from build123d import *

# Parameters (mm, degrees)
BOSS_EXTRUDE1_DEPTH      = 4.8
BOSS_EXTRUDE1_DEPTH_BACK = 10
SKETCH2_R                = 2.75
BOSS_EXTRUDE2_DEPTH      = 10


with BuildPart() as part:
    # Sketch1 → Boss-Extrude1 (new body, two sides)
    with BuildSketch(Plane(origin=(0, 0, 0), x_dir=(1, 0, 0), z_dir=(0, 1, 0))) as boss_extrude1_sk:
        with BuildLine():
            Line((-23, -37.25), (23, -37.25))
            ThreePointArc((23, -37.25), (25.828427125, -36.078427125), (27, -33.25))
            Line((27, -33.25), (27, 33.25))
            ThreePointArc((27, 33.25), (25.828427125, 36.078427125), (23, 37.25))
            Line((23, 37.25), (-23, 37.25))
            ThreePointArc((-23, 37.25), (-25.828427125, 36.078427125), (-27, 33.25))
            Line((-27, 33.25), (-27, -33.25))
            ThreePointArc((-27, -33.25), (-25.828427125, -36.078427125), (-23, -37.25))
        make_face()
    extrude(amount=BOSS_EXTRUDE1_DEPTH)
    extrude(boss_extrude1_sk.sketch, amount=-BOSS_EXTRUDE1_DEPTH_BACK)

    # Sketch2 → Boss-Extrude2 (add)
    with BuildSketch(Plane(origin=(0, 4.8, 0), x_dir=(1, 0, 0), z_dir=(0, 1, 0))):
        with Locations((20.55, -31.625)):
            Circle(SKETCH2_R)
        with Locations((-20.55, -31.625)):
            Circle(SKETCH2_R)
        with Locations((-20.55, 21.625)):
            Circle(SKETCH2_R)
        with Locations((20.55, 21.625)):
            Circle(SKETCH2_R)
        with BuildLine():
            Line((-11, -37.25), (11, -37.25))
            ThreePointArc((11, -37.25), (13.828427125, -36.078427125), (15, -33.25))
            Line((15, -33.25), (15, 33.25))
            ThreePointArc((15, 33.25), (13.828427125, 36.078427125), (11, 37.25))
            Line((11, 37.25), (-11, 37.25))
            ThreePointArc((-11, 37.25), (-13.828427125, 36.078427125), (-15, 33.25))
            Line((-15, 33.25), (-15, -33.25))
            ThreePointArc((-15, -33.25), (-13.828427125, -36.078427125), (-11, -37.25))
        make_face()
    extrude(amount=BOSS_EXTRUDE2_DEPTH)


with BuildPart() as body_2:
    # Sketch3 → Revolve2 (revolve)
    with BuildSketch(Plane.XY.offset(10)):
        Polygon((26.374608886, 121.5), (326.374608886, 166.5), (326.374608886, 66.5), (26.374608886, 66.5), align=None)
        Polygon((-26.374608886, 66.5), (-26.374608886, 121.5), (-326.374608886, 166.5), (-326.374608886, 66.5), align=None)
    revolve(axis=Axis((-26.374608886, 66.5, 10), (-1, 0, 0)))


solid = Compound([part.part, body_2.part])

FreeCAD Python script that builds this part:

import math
import FreeCAD as App
import Part
import Sketcher
from FreeCAD import Vector
Q = App.Units.Quantity

doc = App.newDocument("Part")
body = doc.addObject("PartDesign::Body", "Body")

# Sketch on XZ plane
sketch1 = doc.addObject("Sketcher::SketchObject", "Sketch")
body.addObject(sketch1)
sketch1.AttachmentSupport = (doc.XZ_Plane, [""])
sketch1.MapMode = "FlatFace"
sketch1.addGeometry(Part.LineSegment(Vector(-23, 37.2, 0), Vector(23, 37.2, 0)), False)
sketch1.addGeometry(Part.ArcOfCircle(Part.Circle(Vector(23, 33.3, 0), Vector(0, 0, 1), 4), math.radians(0), math.radians(90)), False)
sketch1.addGeometry(Part.LineSegment(Vector(27, 33.2, 0), Vector(27, -33.2, 0)), False)
sketch1.addGeometry(Part.ArcOfCircle(Part.Circle(Vector(23, -33.3, 0), Vector(0, 0, 1), 4), math.radians(-90), math.radians(0)), False)
sketch1.addGeometry(Part.LineSegment(Vector(23, -37.2, 0), Vector(-23, -37.2, 0)), False)
sketch1.addGeometry(Part.ArcOfCircle(Part.Circle(Vector(-23, -33.3, 0), Vector(0, 0, 1), 4), math.radians(180), math.radians(270)), False)
sketch1.addGeometry(Part.LineSegment(Vector(-27, -33.2, 0), Vector(-27, 33.2, 0)), False)
sketch1.addGeometry(Part.ArcOfCircle(Part.Circle(Vector(-23, 33.3, 0), Vector(0, 0, 1), 4), math.radians(90), math.radians(180)), False)
sketch1.addConstraint(Sketcher.Constraint("Tangent", 0, 2, 1, 2))
sketch1.addConstraint(Sketcher.Constraint("Tangent", 1, 1, 2, 1))
sketch1.addConstraint(Sketcher.Constraint("Tangent", 2, 2, 3, 2))
sketch1.addConstraint(Sketcher.Constraint("Tangent", 3, 1, 4, 1))
sketch1.addConstraint(Sketcher.Constraint("Tangent", 4, 2, 5, 2))
sketch1.addConstraint(Sketcher.Constraint("Tangent", 5, 1, 6, 1))
sketch1.addConstraint(Sketcher.Constraint("Tangent", 6, 2, 7, 2))
sketch1.addConstraint(Sketcher.Constraint("Tangent", 7, 1, 0, 1))
sketch1.addConstraint(Sketcher.Constraint("Horizontal", 0))
sketch1.addConstraint(Sketcher.Constraint("Vertical", 2))
sketch1.addConstraint(Sketcher.Constraint("Horizontal", 4))
sketch1.addConstraint(Sketcher.Constraint("Vertical", 6))
sketch1.addConstraint(Sketcher.Constraint("Equal", 1, 3))
sketch1.addConstraint(Sketcher.Constraint("Equal", 3, 5))
sketch1.addConstraint(Sketcher.Constraint("Equal", 5, 7))
sketch1.addConstraint(Sketcher.Constraint("Symmetric", 1, 3, 5, 3, -1, 1))
sketch1.addConstraint(Sketcher.Constraint("Radius", 1, Q("4 mm")))
sketch1.addConstraint(Sketcher.Constraint("DistanceX", 0, 1, 0, 2, Q("46 mm")))
sketch1.addConstraint(Sketcher.Constraint("DistanceY", 2, 2, 2, 1, Q("66.5 mm")))
pad1 = doc.addObject("PartDesign::Pad", "Pad")
body.addObject(pad1)
pad1.Profile = sketch1
pad1.Type = "TwoLengths"
pad1.Length = 4.8
pad1.Length2 = 10
pad1.Reversed = True

# Sketch on XZ plane
sketch2 = doc.addObject("Sketcher::SketchObject", "Sketch001")
body.addObject(sketch2)
sketch2.AttachmentSupport = (doc.XZ_Plane, [""])
sketch2.MapMode = "FlatFace"
sketch2.AttachmentOffset = App.Placement(Vector(0, 0, -4.8), App.Rotation())
sketch2.addGeometry(Part.Circle(Vector(20.6, 31.6, 0), Vector(0, 0, 1), 2.8), False)
sketch2.addGeometry(Part.Circle(Vector(-20.6, 31.6, 0), Vector(0, 0, 1), 2.8), False)
sketch2.addGeometry(Part.Circle(Vector(-20.6, -21.6, 0), Vector(0, 0, 1), 2.8), False)
sketch2.addGeometry(Part.Circle(Vector(20.6, -21.6, 0), Vector(0, 0, 1), 2.8), False)
sketch2.addGeometry(Part.LineSegment(Vector(-11, 37.2, 0), Vector(11, 37.2, 0)), False)
sketch2.addGeometry(Part.ArcOfCircle(Part.Circle(Vector(11, 33.3, 0), Vector(0, 0, 1), 4), math.radians(0), math.radians(90)), False)
sketch2.addGeometry(Part.LineSegment(Vector(15, 33.2, 0), Vector(15, -33.2, 0)), False)
sketch2.addGeometry(Part.ArcOfCircle(Part.Circle(Vector(11, -33.3, 0), Vector(0, 0, 1), 4), math.radians(-90), math.radians(0)), False)
sketch2.addGeometry(Part.LineSegment(Vector(11, -37.2, 0), Vector(-11, -37.2, 0)), False)
sketch2.addGeometry(Part.ArcOfCircle(Part.Circle(Vector(-11, -33.3, 0), Vector(0, 0, 1), 4), math.radians(180), math.radians(270)), False)
sketch2.addGeometry(Part.LineSegment(Vector(-15, -33.2, 0), Vector(-15, 33.2, 0)), False)
sketch2.addGeometry(Part.ArcOfCircle(Part.Circle(Vector(-11, 33.3, 0), Vector(0, 0, 1), 4), math.radians(90), math.radians(180)), False)
sketch2.addConstraint(Sketcher.Constraint("Tangent", 4, 2, 5, 2))
sketch2.addConstraint(Sketcher.Constraint("Tangent", 5, 1, 6, 1))
sketch2.addConstraint(Sketcher.Constraint("Tangent", 6, 2, 7, 2))
sketch2.addConstraint(Sketcher.Constraint("Tangent", 7, 1, 8, 1))
sketch2.addConstraint(Sketcher.Constraint("Tangent", 8, 2, 9, 2))
sketch2.addConstraint(Sketcher.Constraint("Tangent", 9, 1, 10, 1))
sketch2.addConstraint(Sketcher.Constraint("Tangent", 10, 2, 11, 2))
sketch2.addConstraint(Sketcher.Constraint("Tangent", 11, 1, 4, 1))
sketch2.addConstraint(Sketcher.Constraint("Horizontal", 4))
sketch2.addConstraint(Sketcher.Constraint("Vertical", 6))
sketch2.addConstraint(Sketcher.Constraint("Horizontal", 8))
sketch2.addConstraint(Sketcher.Constraint("Vertical", 10))
sketch2.addConstraint(Sketcher.Constraint("Equal", 0, 1))
sketch2.addConstraint(Sketcher.Constraint("Equal", 1, 2))
sketch2.addConstraint(Sketcher.Constraint("Equal", 2, 3))
sketch2.addConstraint(Sketcher.Constraint("Equal", 5, 7))
sketch2.addConstraint(Sketcher.Constraint("Equal", 7, 9))
sketch2.addConstraint(Sketcher.Constraint("Equal", 9, 11))
sketch2.addConstraint(Sketcher.Constraint("Symmetric", 5, 3, 9, 3, -1, 1))
sketch2.addConstraint(Sketcher.Constraint("Symmetric", 0, 3, 1, 3, -2))
sketch2.addConstraint(Sketcher.Constraint("Symmetric", 2, 3, 3, 3, -2))
sketch2.addConstraint(Sketcher.Constraint("Vertical", 1, 3, 2, 3))
sketch2.addConstraint(Sketcher.Constraint("Radius", 5, Q("4 mm")))
sketch2.addConstraint(Sketcher.Constraint("Diameter", 0, Q("5.5 mm")))
sketch2.addConstraint(Sketcher.Constraint("DistanceX", 4, 1, 4, 2, Q("22 mm")))
sketch2.addConstraint(Sketcher.Constraint("DistanceY", 6, 2, 6, 1, Q("66.5 mm")))
sketch2.addConstraint(Sketcher.Constraint("DistanceX", 1, 3, 0, 3, Q("41.1 mm")))
sketch2.addConstraint(Sketcher.Constraint("DistanceY", 2, 3, 1, 3, Q("53.25 mm")))
sketch2.addConstraint(Sketcher.Constraint("DistanceY", -1, 1, 0, 3, Q("31.625 mm")))
pad2 = doc.addObject("PartDesign::Pad", "Pad001")
body.addObject(pad2)
pad2.Profile = sketch2
pad2.Length = 10
pad2.Reversed = True
body2 = doc.addObject("PartDesign::Body", "Body001")
body2.AllowCompound = True

# Sketch on XY plane
sketch3 = doc.addObject("Sketcher::SketchObject", "Sketch002")
body2.addObject(sketch3)
sketch3.AttachmentSupport = (doc.getObject("XY_Plane001"), [""])
sketch3.MapMode = "FlatFace"
sketch3.AttachmentOffset = App.Placement(Vector(0, 0, 10), App.Rotation())
sketch3.addGeometry(Part.LineSegment(Vector(326, 166, 0), Vector(26, 122, 0)), False)
sketch3.addGeometry(Part.LineSegment(Vector(26, 122, 0), Vector(26, 66, 0)), False)
sketch3.addGeometry(Part.LineSegment(Vector(26, 66, 0), Vector(326, 66, 0)), False)
sketch3.addGeometry(Part.LineSegment(Vector(326, 66, 0), Vector(326, 166, 0)), False)
sketch3.addGeometry(Part.LineSegment(Vector(-26, 66, 0), Vector(-26, 122, 0)), False)
sketch3.addGeometry(Part.LineSegment(Vector(-26, 122, 0), Vector(-326, 166, 0)), False)
sketch3.addGeometry(Part.LineSegment(Vector(-326, 166, 0), Vector(-326, 66, 0)), False)
sketch3.addGeometry(Part.LineSegment(Vector(-326, 66, 0), Vector(-26, 66, 0)), False)
sketch3.addGeometry(Part.LineSegment(Vector(326, 66, 0), Vector(-326, 66, 0)), True)  # axis
sketch3.addConstraint(Sketcher.Constraint("Coincident", 0, 2, 1, 1))
sketch3.addConstraint(Sketcher.Constraint("Coincident", 1, 2, 2, 1))
sketch3.addConstraint(Sketcher.Constraint("Coincident", 2, 2, 3, 1))
sketch3.addConstraint(Sketcher.Constraint("Coincident", 3, 2, 0, 1))
sketch3.addConstraint(Sketcher.Constraint("Coincident", 4, 2, 5, 1))
sketch3.addConstraint(Sketcher.Constraint("Coincident", 5, 2, 6, 1))
sketch3.addConstraint(Sketcher.Constraint("Coincident", 6, 2, 7, 1))
sketch3.addConstraint(Sketcher.Constraint("Coincident", 7, 2, 4, 1))
sketch3.addConstraint(Sketcher.Constraint("Vertical", 1))
sketch3.addConstraint(Sketcher.Constraint("Horizontal", 2))
sketch3.addConstraint(Sketcher.Constraint("Vertical", 3))
sketch3.addConstraint(Sketcher.Constraint("Vertical", 4))
sketch3.addConstraint(Sketcher.Constraint("Vertical", 6))
sketch3.addConstraint(Sketcher.Constraint("Horizontal", 7))
sketch3.addConstraint(Sketcher.Constraint("Horizontal", 8))
sketch3.addConstraint(Sketcher.Constraint("Coincident", 8, 1, 2, 2))
sketch3.addConstraint(Sketcher.Constraint("Coincident", 8, 2, 6, 2))
sketch3.addConstraint(Sketcher.Constraint("Symmetric", 0, 2, 4, 2, -2))
sketch3.addConstraint(Sketcher.Constraint("Symmetric", 3, 2, 5, 2, -2))
sketch3.addConstraint(Sketcher.Constraint("DistanceX", 2, 1, 2, 2, Q("300 mm")))
sketch3.addConstraint(Sketcher.Constraint("DistanceY", 1, 2, 1, 1, Q("55 mm")))
sketch3.addConstraint(Sketcher.Constraint("DistanceY", 3, 1, 3, 2, Q("100 mm")))
sketch3.addConstraint(Sketcher.Constraint("DistanceY", -1, 1, 0, 2, Q("121.5 mm")))
sketch3.addConstraint(Sketcher.Constraint("DistanceX", 8, 2, 8, 1, Q("652.749218 mm")))
revolution = doc.addObject("PartDesign::Revolution", "Revolution")
body2.addObject(revolution)
revolution.Profile = sketch3
revolution.ReferenceAxis = (sketch3, ["Axis0"])
revolution.Angle = 360

doc.recompute()
